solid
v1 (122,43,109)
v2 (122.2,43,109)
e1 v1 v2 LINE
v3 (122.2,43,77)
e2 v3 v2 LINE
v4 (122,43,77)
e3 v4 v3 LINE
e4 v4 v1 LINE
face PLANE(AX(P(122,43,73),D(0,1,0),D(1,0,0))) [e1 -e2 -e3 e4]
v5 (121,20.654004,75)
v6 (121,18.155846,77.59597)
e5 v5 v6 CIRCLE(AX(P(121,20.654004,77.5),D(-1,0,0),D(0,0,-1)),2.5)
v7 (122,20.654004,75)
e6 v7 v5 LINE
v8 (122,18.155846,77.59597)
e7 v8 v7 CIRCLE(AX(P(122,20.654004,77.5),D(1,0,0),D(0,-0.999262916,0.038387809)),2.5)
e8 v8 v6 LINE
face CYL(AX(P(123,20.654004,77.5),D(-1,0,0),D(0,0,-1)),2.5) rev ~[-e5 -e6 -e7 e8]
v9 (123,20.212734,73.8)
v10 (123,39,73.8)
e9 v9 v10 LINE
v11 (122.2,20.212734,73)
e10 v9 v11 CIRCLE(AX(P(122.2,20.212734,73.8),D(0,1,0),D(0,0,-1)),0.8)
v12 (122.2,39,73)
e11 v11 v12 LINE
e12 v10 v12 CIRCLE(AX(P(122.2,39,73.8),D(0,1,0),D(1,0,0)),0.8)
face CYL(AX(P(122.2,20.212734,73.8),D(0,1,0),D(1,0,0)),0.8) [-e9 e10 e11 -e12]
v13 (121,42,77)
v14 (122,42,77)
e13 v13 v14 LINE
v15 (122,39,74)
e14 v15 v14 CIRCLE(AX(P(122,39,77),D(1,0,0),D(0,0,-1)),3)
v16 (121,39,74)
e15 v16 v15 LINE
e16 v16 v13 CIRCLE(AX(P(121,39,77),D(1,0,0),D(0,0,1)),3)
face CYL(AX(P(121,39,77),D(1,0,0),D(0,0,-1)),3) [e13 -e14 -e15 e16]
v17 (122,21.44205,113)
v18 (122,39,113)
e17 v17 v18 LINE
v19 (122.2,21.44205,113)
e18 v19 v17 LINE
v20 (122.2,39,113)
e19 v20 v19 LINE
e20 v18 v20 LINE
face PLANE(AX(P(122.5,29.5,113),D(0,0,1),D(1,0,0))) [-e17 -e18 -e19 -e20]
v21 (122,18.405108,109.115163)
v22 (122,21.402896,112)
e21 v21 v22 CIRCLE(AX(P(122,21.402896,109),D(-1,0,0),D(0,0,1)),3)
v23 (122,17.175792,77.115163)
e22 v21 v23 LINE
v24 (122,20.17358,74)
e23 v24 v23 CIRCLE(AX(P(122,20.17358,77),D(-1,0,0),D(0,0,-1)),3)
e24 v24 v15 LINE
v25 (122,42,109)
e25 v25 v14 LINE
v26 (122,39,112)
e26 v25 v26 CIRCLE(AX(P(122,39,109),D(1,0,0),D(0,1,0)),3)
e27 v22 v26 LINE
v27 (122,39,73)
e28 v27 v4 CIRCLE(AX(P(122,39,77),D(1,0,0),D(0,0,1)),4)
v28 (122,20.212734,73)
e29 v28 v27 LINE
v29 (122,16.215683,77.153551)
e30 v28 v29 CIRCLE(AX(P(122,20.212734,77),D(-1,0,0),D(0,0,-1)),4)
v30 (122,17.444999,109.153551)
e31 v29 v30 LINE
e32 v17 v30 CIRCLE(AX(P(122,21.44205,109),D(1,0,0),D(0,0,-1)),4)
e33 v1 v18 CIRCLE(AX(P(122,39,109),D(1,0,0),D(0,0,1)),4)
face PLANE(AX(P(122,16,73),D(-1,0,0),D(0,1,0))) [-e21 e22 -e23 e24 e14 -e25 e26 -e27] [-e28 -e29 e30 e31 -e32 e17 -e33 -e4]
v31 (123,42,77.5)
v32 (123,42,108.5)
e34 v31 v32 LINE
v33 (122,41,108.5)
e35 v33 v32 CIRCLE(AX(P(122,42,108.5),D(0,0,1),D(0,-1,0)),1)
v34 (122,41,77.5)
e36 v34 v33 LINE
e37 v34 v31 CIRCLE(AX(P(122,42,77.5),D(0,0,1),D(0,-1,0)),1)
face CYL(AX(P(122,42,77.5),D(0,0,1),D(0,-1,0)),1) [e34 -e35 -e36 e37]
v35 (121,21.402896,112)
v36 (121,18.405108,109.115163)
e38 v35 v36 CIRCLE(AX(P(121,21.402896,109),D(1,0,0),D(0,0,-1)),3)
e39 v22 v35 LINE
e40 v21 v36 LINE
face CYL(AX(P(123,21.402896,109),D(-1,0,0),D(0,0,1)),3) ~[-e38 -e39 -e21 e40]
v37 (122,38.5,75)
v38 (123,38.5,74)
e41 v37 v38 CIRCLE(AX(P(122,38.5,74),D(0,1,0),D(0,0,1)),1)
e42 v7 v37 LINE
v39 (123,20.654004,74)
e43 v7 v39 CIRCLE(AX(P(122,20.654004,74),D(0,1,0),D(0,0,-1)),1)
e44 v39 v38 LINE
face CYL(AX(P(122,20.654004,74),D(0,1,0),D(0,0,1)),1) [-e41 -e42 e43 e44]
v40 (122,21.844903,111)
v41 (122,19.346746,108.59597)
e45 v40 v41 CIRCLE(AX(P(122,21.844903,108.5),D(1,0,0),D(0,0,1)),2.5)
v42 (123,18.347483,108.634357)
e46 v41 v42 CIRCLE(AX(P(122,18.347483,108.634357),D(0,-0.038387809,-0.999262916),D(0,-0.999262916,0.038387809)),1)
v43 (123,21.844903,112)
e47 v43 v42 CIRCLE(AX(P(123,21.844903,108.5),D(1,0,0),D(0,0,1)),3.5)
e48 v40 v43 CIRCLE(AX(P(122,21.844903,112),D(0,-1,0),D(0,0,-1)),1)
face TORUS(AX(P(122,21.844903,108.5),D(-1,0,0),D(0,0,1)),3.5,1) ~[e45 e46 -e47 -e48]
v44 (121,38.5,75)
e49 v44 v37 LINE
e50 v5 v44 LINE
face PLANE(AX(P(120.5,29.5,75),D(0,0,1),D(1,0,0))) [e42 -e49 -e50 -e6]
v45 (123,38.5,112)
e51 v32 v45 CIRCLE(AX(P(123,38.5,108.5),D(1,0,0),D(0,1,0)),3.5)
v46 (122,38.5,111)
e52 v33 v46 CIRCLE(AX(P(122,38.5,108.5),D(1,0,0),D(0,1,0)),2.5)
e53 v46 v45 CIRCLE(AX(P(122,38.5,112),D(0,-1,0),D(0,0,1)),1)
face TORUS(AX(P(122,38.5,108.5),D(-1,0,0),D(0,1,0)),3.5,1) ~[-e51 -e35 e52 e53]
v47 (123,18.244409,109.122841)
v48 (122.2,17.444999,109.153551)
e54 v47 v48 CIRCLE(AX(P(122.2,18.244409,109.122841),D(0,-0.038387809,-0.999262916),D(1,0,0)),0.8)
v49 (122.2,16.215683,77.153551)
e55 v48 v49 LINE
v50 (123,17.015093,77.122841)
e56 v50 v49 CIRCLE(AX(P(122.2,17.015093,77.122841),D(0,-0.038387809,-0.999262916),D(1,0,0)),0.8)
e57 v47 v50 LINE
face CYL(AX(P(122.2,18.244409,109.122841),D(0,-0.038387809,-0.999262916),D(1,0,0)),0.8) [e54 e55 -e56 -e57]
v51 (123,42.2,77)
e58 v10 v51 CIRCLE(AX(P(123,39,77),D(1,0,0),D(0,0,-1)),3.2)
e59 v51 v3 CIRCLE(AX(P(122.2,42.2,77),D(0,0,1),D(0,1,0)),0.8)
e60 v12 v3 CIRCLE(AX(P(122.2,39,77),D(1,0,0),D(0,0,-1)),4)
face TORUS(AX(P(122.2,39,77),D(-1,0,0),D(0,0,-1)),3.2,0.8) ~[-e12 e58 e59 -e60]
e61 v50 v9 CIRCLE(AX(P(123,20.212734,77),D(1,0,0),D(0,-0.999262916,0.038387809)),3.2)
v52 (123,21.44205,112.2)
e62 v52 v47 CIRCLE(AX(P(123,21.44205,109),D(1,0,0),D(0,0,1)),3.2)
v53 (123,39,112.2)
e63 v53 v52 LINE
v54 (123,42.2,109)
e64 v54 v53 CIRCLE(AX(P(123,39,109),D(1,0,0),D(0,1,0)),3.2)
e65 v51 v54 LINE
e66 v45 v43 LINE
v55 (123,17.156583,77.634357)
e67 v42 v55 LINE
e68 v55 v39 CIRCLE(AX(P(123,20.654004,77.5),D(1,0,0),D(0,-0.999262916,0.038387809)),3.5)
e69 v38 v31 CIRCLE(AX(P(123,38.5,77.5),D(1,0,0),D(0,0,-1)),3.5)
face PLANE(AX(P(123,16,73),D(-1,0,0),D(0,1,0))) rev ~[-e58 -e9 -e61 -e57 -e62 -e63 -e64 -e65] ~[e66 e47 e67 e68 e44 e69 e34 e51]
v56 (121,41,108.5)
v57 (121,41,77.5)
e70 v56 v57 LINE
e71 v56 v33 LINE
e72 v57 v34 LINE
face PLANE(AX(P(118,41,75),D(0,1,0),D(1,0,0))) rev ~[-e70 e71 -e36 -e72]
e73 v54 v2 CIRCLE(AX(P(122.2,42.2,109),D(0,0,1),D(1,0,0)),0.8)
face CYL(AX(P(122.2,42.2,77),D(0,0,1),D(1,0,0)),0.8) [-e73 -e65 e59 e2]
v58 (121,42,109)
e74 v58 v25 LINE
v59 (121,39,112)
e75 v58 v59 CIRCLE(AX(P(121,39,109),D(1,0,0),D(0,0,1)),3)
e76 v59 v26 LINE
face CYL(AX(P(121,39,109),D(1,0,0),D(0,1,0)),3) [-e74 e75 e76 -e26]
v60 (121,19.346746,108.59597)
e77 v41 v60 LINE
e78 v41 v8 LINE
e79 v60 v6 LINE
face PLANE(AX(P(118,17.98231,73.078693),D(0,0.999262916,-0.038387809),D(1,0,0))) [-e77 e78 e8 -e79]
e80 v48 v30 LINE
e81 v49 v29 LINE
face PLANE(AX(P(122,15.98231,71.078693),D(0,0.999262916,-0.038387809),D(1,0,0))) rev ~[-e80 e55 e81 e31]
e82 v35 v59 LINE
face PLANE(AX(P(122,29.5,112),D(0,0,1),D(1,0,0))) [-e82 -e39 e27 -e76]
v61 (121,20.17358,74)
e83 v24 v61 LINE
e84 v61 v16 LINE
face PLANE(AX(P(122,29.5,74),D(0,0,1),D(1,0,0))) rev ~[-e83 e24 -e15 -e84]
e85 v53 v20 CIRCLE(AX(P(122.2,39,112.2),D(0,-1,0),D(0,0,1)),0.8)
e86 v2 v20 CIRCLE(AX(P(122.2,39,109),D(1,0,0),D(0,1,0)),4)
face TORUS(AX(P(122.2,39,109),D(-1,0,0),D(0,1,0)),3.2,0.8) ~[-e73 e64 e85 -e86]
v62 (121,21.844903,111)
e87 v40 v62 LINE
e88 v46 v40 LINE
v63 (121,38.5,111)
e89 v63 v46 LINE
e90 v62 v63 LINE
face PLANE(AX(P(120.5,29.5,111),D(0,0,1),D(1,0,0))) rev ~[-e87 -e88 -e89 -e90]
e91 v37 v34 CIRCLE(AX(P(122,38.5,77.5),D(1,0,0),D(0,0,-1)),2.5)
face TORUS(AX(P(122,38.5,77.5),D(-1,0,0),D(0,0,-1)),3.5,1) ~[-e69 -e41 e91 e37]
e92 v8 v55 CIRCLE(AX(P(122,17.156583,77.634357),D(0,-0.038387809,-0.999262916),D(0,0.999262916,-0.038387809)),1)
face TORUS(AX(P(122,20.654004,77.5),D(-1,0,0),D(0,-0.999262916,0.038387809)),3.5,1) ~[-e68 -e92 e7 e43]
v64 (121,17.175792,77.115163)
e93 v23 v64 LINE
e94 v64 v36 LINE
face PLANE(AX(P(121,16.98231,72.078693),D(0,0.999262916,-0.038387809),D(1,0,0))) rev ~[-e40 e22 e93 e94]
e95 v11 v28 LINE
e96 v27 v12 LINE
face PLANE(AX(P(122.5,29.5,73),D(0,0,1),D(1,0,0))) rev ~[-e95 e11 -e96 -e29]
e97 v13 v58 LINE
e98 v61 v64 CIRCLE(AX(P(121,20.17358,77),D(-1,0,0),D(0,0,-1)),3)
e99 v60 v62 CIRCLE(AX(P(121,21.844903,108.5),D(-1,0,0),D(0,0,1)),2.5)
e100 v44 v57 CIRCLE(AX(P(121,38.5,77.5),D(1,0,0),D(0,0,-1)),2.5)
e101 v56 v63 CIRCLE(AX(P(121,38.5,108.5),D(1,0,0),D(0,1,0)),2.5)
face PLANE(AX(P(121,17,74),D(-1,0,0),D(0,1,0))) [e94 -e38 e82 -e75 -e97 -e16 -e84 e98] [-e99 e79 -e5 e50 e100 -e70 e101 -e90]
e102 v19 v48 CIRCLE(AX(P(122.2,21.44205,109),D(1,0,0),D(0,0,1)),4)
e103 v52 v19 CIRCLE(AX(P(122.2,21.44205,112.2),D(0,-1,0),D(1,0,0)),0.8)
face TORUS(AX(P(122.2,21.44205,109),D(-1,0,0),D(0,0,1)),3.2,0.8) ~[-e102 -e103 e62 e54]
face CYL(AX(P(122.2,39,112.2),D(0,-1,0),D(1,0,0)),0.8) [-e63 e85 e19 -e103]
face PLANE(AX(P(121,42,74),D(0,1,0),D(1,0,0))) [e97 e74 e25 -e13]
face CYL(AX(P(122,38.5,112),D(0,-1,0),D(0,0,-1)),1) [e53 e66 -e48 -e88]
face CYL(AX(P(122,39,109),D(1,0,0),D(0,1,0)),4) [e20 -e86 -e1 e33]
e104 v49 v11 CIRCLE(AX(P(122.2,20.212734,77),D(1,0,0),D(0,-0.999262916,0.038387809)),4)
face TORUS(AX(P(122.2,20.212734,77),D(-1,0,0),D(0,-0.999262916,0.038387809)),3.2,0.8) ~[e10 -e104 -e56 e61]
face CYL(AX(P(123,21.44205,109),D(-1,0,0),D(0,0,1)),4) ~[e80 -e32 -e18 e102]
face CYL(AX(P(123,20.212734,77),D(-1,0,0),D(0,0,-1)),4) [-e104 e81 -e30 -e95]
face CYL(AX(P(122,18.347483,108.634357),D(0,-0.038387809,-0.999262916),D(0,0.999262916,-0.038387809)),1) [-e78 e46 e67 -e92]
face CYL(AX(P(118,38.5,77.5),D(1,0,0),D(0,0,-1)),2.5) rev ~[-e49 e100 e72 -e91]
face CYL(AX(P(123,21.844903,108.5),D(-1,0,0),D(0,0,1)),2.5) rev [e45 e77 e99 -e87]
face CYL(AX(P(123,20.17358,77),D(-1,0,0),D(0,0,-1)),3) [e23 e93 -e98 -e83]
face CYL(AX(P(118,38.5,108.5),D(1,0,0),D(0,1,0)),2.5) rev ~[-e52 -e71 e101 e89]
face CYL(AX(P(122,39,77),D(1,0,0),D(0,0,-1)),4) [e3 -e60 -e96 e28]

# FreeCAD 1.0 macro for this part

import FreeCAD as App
import Part
import Sketcher
from FreeCAD import Vector
Q = App.Units.Quantity


def edges_at(feature, points):
    """Names of the edges that pass closest to the given points."""
    edges = feature.Shape.Edges
    near = lambda p: min(range(len(edges)), key=lambda i: edges[i].distToShape(Part.Vertex(*p))[0])
    return sorted({f"Edge{near(p) + 1}" for p in points})


def add_polygon(sketch, points):
    """Adds a closed chain of lines whose ends are joined by coincident constraints."""
    first, n = sketch.GeometryCount, len(points)
    for a, b in zip(points, points[1:] + points[:1]):
        sketch.addGeometry(Part.LineSegment(App.Vector(*a, 0), App.Vector(*b, 0)), False)
    for i in range(n):
        sketch.addConstraint(Sketcher.Constraint("Coincident", first + i, 2, first + (i + 1) % n, 1))

doc = App.newDocument("Part")
body = doc.addObject("PartDesign::Body", "Body")

# Sketch on XY plane
sketch1 = body.newObject("Sketcher::SketchObject", "Sketch")
sketch1.AttachmentSupport = (doc.getObject("XY_Plane"), [""])
sketch1.MapMode = "FlatFace"
add_polygon(sketch1, [(0, 24), (0, 0), (5, 0), (5, 24)])  # lines 0-3
sketch1.addConstraint(Sketcher.Constraint("Vertical", 0))
sketch1.addConstraint(Sketcher.Constraint("Horizontal", 1))
sketch1.addConstraint(Sketcher.Constraint("Vertical", 2))
sketch1.addConstraint(Sketcher.Constraint("Horizontal", 3))
sketch1.addConstraint(Sketcher.Constraint("Coincident", 0, 2, -1, 1))
sketch1.addConstraint(Sketcher.Constraint("DistanceX", 1, 1, 1, 2, Q("5 mm")))
sketch1.addConstraint(Sketcher.Constraint("DistanceY", 0, 2, 0, 1, Q("24 mm")))
pad1 = body.newObject("PartDesign::Pad", "Pad")
pad1.Profile = sketch1
pad1.Length = 40
body2 = doc.addObject("PartDesign::Body", "Body001")
doc.recompute()

body.Placement = App.Placement(Vector(0, 0, 0), App.Rotation(Vector(1, 0, 0), 357.8))
boolean = body2.newObject("PartDesign::Boolean", "Boolean")
boolean.Type = "Fuse"
boolean.addObjects([body])
body3 = doc.addObject("PartDesign::Body", "Body002")
doc.recompute()

body2.Placement = App.Placement(Vector(175, -24, -1), App.Rotation(Vector(0, 0, 1), 0))
boolean2 = body3.newObject("PartDesign::Boolean", "Boolean001")
boolean2.Type = "Fuse"
boolean2.addObjects([body2])
body4 = doc.addObject("PartDesign::Body", "Body003")

# Sketch on XY plane
sketch2 = body4.newObject("Sketcher::SketchObject", "Sketch001")
sketch2.AttachmentSupport = (doc.getObject("XY_Plane003"), [""])
sketch2.MapMode = "FlatFace"
add_polygon(sketch2, [(175, 23), (175, 0), (180, 0), (180, 23)])  # lines 0-3
sketch2.addConstraint(Sketcher.Constraint("Vertical", 0))
sketch2.addConstraint(Sketcher.Constraint("Horizontal", 1))
sketch2.addConstraint(Sketcher.Constraint("Vertical", 2))
sketch2.addConstraint(Sketcher.Constraint("Horizontal", 3))
sketch2.addConstraint(Sketcher.Constraint("PointOnObject", 0, 2, -1))
sketch2.addConstraint(Sketcher.Constraint("DistanceX", 1, 1, 1, 2, Q("5 mm")))
sketch2.addConstraint(Sketcher.Constraint("DistanceY", 0, 2, 0, 1, Q("23 mm")))
sketch2.addConstraint(Sketcher.Constraint("DistanceX", -1, 1, 0, 2, Q("175 mm")))
pad2 = body4.newObject("PartDesign::Pad", "Pad001")
pad2.Profile = sketch2
pad2.Length = 36
doc.recompute()

boolean3 = body4.newObject("PartDesign::Boolean", "Boolean002")
boolean3.Type = "Cut"
boolean3.addObjects([body3])
body5 = doc.addObject("PartDesign::Body", "Body004")
doc.recompute()

body4.Placement = App.Placement(Vector(-57, 17, 74), App.Rotation(Vector(0, 0, 1), 0))
boolean4 = body5.newObject("PartDesign::Boolean", "Boolean003")
boolean4.Type = "Fuse"
boolean4.addObjects([body4])
doc.recompute()

fillet = body5.newObject("PartDesign::Fillet", "Fillet")
fillet.Base = (boolean4, edges_at(boolean4, [
    (120.5, 40, 110),
    (120.5, 18.439, 110),
    (120.5, 40, 74),
    (120.5, 17.056, 74),
]))
fillet.Radius = 2.5
body6 = doc.addObject("PartDesign::Body", "Body005")
doc.recompute()

body5.Placement = App.Placement(Vector(0, 1, 1), App.Rotation(Vector(0, 0, 1), 0))
boolean5 = body6.newObject("PartDesign::Boolean", "Boolean004")
boolean5.Type = "Fuse"
boolean5.addObjects([body5])
body7 = doc.addObject("PartDesign::Body", "Body006")

# Sketch on XY plane
sketch3 = body7.newObject("Sketcher::SketchObject", "Sketch002")
sketch3.AttachmentSupport = (doc.getObject("XY_Plane006"), [""])
sketch3.MapMode = "FlatFace"
add_polygon(sketch3, [(0, 24), (0, 0), (5, 0), (5, 24)])  # lines 0-3
sketch3.addConstraint(Sketcher.Constraint("Vertical", 0))
sketch3.addConstraint(Sketcher.Constraint("Horizontal", 1))
sketch3.addConstraint(Sketcher.Constraint("Vertical", 2))
sketch3.addConstraint(Sketcher.Constraint("Horizontal", 3))
sketch3.addConstraint(Sketcher.Constraint("Coincident", 0, 2, -1, 1))
sketch3.addConstraint(Sketcher.Constraint("DistanceX", 1, 1, 1, 2, Q("5 mm")))
sketch3.addConstraint(Sketcher.Constraint("DistanceY", 0, 2, 0, 1, Q("24 mm")))
pad3 = body7.newObject("PartDesign::Pad", "Pad002")
pad3.Profile = sketch3
pad3.Length = 40
body8 = doc.addObject("PartDesign::Body", "Body007")
doc.recompute()

body7.Placement = App.Placement(Vector(0, 0, 0), App.Rotation(Vector(1, 0, 0), 357.8))
boolean6 = body8.newObject("PartDesign::Boolean", "Boolean005")
boolean6.Type = "Fuse"
boolean6.addObjects([body7])
body9 = doc.addObject("PartDesign::Body", "Body008")
doc.recompute()

body8.Placement = App.Placement(Vector(175, -24, -1), App.Rotation(Vector(0, 0, 1), 0))
boolean7 = body9.newObject("PartDesign::Boolean", "Boolean006")
boolean7.Type = "Fuse"
boolean7.addObjects([body8])
body10 = doc.addObject("PartDesign::Body", "Body009")

# Sketch on XY plane
sketch4 = body10.newObject("Sketcher::SketchObject", "Sketch003")
sketch4.AttachmentSupport = (doc.getObject("XY_Plane009"), [""])
sketch4.MapMode = "FlatFace"
add_polygon(sketch4, [(175, 25), (175, 0), (177, 0), (177, 25)])  # lines 0-3
sketch4.addConstraint(Sketcher.Constraint("Vertical", 0))
sketch4.addConstraint(Sketcher.Constraint("Horizontal", 1))
sketch4.addConstraint(Sketcher.Constraint("Vertical", 2))
sketch4.addConstraint(Sketcher.Constraint("Horizontal", 3))
sketch4.addConstraint(Sketcher.Constraint("PointOnObject", 0, 2, -1))
sketch4.addConstraint(Sketcher.Constraint("DistanceX", 1, 1, 1, 2, Q("2 mm")))
sketch4.addConstraint(Sketcher.Constraint("DistanceY", 0, 2, 0, 1, Q("25 mm")))
sketch4.addConstraint(Sketcher.Constraint("DistanceX", -1, 1, 0, 2, Q("175 mm")))
pad4 = body10.newObject("PartDesign::Pad", "Pad003")
pad4.Profile = sketch4
pad4.Length = 38
doc.recompute()

boolean8 = body10.newObject("PartDesign::Boolean", "Boolean007")
boolean8.Type = "Cut"
boolean8.addObjects([body9])
body11 = doc.addObject("PartDesign::Body", "Body010")
doc.recompute()

body10.Placement = App.Placement(Vector(-57, 17, 74), App.Rotation(Vector(0, 0, 1), 0))
boolean9 = body11.newObject("PartDesign::Boolean", "Boolean008")
boolean9.Type = "Fuse"
boolean9.addObjects([body10])
doc.recompute()

fillet2 = body11.newObject("PartDesign::Fillet", "Fillet001")
fillet2.Base = (boolean9, edges_at(boolean9, [
    (119, 42, 112),
    (119, 18.516, 112),
    (119, 42, 74),
    (119, 17.056, 74),
]))
fillet2.Radius = 3
body12 = doc.addObject("PartDesign::Body", "Body011")
doc.recompute()

body11.Placement = App.Placement(Vector(3, 0, 0), App.Rotation(Vector(0, 0, 1), 0))
boolean10 = body12.newObject("PartDesign::Boolean", "Boolean009")
boolean10.Type = "Fuse"
boolean10.addObjects([body11])
body13 = doc.addObject("PartDesign::Body", "Body012")

# Sketch on XY plane
sketch5 = body13.newObject("Sketcher::SketchObject", "Sketch004")
sketch5.AttachmentSupport = (doc.getObject("XY_Plane012"), [""])
sketch5.MapMode = "FlatFace"
add_polygon(sketch5, [(0, 24), (0, 0), (5, 0), (5, 24)])  # lines 0-3
sketch5.addConstraint(Sketcher.Constraint("Vertical", 0))
sketch5.addConstraint(Sketcher.Constraint("Horizontal", 1))
sketch5.addConstraint(Sketcher.Constraint("Vertical", 2))
sketch5.addConstraint(Sketcher.Constraint("Horizontal", 3))
sketch5.addConstraint(Sketcher.Constraint("Coincident", 0, 2, -1, 1))
sketch5.addConstraint(Sketcher.Constraint("DistanceX", 1, 1, 1, 2, Q("5 mm")))
sketch5.addConstraint(Sketcher.Constraint("DistanceY", 0, 2, 0, 1, Q("24 mm")))
pad5 = body13.newObject("PartDesign::Pad", "Pad004")
pad5.Profile = sketch5
pad5.Length = 42
body14 = doc.addObject("PartDesign::Body", "Body013")
doc.recompute()

body13.Placement = App.Placement(Vector(0, 0, 0), App.Rotation(Vector(1, 0, 0), 357.8))
boolean11 = body14.newObject("PartDesign::Boolean", "Boolean010")
boolean11.Type = "Fuse"
boolean11.addObjects([body13])
body15 = doc.addObject("PartDesign::Body", "Body014")
doc.recompute()

body14.Placement = App.Placement(Vector(175, -24, -1), App.Rotation(Vector(0, 0, 1), 0))
boolean12 = body15.newObject("PartDesign::Boolean", "Boolean011")
boolean12.Type = "Fuse"
boolean12.addObjects([body14])
body16 = doc.addObject("PartDesign::Body", "Body015")

# Sketch on XY plane
sketch6 = body16.newObject("Sketcher::SketchObject", "Sketch005")
sketch6.AttachmentSupport = (doc.getObject("XY_Plane015"), [""])
sketch6.MapMode = "FlatFace"
add_polygon(sketch6, [(175, 27), (175, 0), (176, 0), (176, 27)])  # lines 0-3
sketch6.addConstraint(Sketcher.Constraint("Vertical", 0))
sketch6.addConstraint(Sketcher.Constraint("Horizontal", 1))
sketch6.addConstraint(Sketcher.Constraint("Vertical", 2))
sketch6.addConstraint(Sketcher.Constraint("Horizontal", 3))
sketch6.addConstraint(Sketcher.Constraint("PointOnObject", 0, 2, -1))
sketch6.addConstraint(Sketcher.Constraint("DistanceX", 1, 1, 1, 2, Q("1 mm")))
sketch6.addConstraint(Sketcher.Constraint("DistanceY", 0, 2, 0, 1, Q("27 mm")))
sketch6.addConstraint(Sketcher.Constraint("DistanceX", -1, 1, 0, 2, Q("175 mm")))
pad6 = body16.newObject("PartDesign::Pad", "Pad005")
pad6.Profile = sketch6
pad6.Length = 40
doc.recompute()

boolean13 = body16.newObject("PartDesign::Boolean", "Boolean012")
boolean13.Type = "Cut"
boolean13.addObjects([body15])
body17 = doc.addObject("PartDesign::Body", "Body016")
doc.recompute()

body16.Placement = App.Placement(Vector(-57, 16, 73), App.Rotation(Vector(0, 0, 1), 0))
boolean14 = body17.newObject("PartDesign::Boolean", "Boolean013")
boolean14.Type = "Fuse"
boolean14.addObjects([body16])
doc.recompute()

fillet3 = body17.newObject("PartDesign::Fillet", "Fillet002")
fillet3.Base = (boolean14, edges_at(boolean14, [
    (118.5, 43, 113),
    (118.5, 17.593, 113),
    (118.5, 43, 73),
    (118.5, 16.056, 73),
]))
fillet3.Radius = 4
body18 = doc.addObject("PartDesign::Body", "Body017")
doc.recompute()

body17.Placement = App.Placement(Vector(4, 0, 0), App.Rotation(Vector(0, 0, 1), 0))
boolean15 = body18.newObject("PartDesign::Boolean", "Boolean014")
boolean15.Type = "Fuse"
boolean15.addObjects([body17])
doc.recompute()

boolean16 = body18.newObject("PartDesign::Boolean", "Boolean015")
boolean16.Type = "Fuse"
boolean16.addObjects([body12])
doc.recompute()

boolean17 = body18.newObject("PartDesign::Boolean", "Boolean016")
boolean17.Type = "Cut"
boolean17.addObjects([body6])
doc.recompute()

fillet4 = body18.newObject("PartDesign::Fillet", "Fillet003")
fillet4.Base = (boolean17, edges_at(boolean17, [(123, 41, 93), (123, 18.751, 93.096)]))
fillet4.Radius = 1
doc.recompute()

fillet5 = body18.newObject("PartDesign::Fillet", "Fillet004")
fillet5.Base = (fillet4, edges_at(fillet4, [(123, 16.83, 93.154), (123, 43, 93)]))
fillet5.Radius = 0.8

doc.recompute()
